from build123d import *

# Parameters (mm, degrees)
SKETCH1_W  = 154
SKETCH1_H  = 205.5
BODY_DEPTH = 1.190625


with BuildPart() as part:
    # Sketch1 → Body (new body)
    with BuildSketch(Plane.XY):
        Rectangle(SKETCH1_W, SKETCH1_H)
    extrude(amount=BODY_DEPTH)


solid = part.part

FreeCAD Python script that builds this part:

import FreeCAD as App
import Part
import Sketcher

V = App.Vector
Q = App.Units.Quantity


def add_polygon(sketch, points):
    """Adds a closed chain of lines whose ends are joined by coincident constraints."""
    first, n = sketch.GeometryCount, len(points)
    for a, b in zip(points, points[1:] + points[:1]):
        sketch.addGeometry(Part.LineSegment(App.Vector(*a, 0), App.Vector(*b, 0)), False)
    for i in range(n):
        sketch.addConstraint(Sketcher.Constraint("Coincident", first + i, 2, first + (i + 1) % n, 1))

doc = App.newDocument("Part")
body = doc.addObject("PartDesign::Body", "Body")

# Sketch on XY plane
sketch1 = body.newObject("Sketcher::SketchObject", "Sketch")
sketch1.AttachmentSupport = (doc.getObject("XY_Plane"), [""])
sketch1.MapMode = "FlatFace"
add_polygon(sketch1, [(-77, 103), (-77, -103), (77, -103), (77, 103)])  # lines 0-3
sketch1.addConstraint([
    Sketcher.Constraint("Vertical", 0),
    Sketcher.Constraint("Horizontal", 1),
    Sketcher.Constraint("Vertical", 2),
    Sketcher.Constraint("Horizontal", 3),
    Sketcher.Constraint("Symmetric", 0, 2, 2, 2, -1, 1),
    Sketcher.Constraint("DistanceX", 1, 1, 1, 2, Q("154 mm")),
    Sketcher.Constraint("DistanceY", 0, 2, 0, 1, Q("205.5 mm")),
])
pad1 = body.newObject("PartDesign::Pad", "Pad")
pad1.Profile = sketch1
pad1.Length = 1.190625

doc.recompute()
